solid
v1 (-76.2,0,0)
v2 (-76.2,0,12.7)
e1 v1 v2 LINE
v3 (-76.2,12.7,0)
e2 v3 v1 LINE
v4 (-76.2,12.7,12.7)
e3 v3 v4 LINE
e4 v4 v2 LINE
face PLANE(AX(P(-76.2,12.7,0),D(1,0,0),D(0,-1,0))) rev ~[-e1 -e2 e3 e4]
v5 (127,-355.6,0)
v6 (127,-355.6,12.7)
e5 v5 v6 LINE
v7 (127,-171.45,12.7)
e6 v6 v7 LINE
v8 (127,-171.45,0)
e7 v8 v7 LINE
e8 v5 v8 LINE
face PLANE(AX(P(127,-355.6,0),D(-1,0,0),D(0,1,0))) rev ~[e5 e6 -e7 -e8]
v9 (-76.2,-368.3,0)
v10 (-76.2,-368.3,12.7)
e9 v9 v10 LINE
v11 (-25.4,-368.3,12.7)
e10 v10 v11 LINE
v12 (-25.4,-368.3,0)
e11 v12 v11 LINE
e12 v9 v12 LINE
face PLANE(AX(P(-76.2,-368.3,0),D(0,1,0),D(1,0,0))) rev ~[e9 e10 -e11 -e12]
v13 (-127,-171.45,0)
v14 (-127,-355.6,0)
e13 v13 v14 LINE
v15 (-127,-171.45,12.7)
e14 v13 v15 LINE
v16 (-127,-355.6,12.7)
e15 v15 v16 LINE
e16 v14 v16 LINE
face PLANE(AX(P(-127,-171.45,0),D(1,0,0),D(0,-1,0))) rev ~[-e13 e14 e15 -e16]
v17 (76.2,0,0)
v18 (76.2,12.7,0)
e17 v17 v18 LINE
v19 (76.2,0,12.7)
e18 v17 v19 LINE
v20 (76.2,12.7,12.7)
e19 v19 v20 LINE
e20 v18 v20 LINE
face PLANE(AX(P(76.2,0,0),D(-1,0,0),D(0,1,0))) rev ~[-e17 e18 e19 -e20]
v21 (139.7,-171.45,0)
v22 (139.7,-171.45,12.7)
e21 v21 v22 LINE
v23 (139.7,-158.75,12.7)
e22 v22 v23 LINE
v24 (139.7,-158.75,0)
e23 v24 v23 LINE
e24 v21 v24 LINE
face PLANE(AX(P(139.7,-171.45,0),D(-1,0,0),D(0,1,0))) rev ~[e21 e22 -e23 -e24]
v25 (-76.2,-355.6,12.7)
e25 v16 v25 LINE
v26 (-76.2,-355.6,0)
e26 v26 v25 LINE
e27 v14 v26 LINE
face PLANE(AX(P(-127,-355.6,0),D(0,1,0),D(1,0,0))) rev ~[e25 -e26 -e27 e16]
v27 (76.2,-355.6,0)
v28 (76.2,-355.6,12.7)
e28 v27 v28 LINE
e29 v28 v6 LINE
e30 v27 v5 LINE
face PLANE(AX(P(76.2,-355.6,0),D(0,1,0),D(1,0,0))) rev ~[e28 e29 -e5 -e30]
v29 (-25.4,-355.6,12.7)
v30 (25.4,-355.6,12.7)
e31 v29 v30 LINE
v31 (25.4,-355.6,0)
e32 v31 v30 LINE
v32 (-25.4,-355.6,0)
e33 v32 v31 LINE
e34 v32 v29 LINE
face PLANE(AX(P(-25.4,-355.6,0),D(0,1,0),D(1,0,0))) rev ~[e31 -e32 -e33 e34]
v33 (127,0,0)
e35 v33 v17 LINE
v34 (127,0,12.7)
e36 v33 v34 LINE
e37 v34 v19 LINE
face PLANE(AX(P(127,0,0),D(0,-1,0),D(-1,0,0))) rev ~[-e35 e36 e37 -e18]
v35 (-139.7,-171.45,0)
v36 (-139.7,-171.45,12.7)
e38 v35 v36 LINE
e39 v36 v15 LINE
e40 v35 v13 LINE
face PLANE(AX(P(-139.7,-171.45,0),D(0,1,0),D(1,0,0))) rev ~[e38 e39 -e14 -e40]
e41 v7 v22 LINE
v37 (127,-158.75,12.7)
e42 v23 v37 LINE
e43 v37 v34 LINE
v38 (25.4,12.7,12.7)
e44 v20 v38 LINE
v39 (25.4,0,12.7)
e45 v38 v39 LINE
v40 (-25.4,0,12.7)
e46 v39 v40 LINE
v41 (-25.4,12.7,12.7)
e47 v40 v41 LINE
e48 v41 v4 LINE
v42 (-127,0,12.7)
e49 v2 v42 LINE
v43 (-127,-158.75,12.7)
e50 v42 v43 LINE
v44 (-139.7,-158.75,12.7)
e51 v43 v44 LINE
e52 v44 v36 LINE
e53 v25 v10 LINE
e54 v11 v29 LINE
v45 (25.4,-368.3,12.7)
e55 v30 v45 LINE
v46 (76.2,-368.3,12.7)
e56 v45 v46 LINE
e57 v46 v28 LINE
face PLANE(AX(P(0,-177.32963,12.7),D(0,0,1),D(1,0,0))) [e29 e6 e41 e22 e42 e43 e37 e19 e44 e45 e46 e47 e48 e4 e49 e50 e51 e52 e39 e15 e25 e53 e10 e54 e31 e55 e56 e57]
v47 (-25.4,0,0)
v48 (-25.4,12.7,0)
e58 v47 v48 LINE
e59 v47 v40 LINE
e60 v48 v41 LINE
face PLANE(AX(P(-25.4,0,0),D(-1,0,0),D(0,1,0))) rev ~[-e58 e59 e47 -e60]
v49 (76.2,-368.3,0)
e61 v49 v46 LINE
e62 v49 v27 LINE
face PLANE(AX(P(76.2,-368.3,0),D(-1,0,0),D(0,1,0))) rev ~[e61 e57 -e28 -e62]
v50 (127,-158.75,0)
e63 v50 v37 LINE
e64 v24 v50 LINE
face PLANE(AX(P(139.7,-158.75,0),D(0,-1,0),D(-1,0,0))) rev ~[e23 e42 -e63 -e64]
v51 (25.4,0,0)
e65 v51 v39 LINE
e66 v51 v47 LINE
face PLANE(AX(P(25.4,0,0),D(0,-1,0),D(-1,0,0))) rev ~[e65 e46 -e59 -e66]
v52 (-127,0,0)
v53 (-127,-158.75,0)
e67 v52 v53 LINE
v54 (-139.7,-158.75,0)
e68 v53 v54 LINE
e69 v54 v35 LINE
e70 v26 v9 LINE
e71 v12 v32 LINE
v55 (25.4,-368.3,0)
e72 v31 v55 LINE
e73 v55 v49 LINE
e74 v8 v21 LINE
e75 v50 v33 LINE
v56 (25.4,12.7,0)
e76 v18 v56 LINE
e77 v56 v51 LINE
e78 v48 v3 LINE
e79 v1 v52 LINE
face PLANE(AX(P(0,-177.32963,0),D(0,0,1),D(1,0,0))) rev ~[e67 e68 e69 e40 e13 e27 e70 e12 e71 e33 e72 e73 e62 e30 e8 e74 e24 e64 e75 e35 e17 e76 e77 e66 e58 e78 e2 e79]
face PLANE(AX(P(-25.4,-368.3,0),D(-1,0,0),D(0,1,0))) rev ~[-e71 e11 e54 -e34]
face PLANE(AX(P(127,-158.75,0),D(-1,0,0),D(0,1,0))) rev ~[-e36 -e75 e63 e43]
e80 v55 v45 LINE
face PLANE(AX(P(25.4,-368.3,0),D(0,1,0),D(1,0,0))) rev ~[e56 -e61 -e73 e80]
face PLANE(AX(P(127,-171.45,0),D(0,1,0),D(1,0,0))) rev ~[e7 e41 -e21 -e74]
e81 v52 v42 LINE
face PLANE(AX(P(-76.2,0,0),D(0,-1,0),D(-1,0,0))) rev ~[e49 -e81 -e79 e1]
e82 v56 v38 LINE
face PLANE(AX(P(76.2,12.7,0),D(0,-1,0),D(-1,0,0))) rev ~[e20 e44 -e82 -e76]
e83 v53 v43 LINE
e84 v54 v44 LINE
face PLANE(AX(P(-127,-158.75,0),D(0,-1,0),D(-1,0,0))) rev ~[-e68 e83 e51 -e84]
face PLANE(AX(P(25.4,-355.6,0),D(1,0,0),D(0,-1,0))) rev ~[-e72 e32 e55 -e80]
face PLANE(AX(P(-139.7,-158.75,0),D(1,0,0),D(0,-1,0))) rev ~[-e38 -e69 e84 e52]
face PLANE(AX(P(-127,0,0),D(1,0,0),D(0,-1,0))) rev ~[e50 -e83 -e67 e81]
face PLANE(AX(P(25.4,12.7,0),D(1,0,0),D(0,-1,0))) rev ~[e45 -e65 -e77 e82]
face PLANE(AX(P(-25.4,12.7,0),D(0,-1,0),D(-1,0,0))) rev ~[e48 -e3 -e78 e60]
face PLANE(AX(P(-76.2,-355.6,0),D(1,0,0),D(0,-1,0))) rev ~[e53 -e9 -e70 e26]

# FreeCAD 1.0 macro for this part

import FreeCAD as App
import Part
import Sketcher
Q = App.Units.Quantity

doc = App.newDocument("Part")
body = doc.addObject("PartDesign::Body", "Body")

# Sketch on XY plane
sketch1 = body.newObject("Sketcher::SketchObject", "Sketch")
sketch1.AttachmentSupport = (doc.getObject("XY_Plane"), [""])
sketch1.MapMode = "FlatFace"
sketch1.addGeometry(Part.LineSegment(App.Vector(-25, 13, 0), App.Vector(-76, 13, 0)), False)
sketch1.addGeometry(Part.LineSegment(App.Vector(-76, 13, 0), App.Vector(-76, 0, 0)), False)
sketch1.addGeometry(Part.LineSegment(App.Vector(-76, 0, 0), App.Vector(-127, 0, 0)), False)
sketch1.addGeometry(Part.LineSegment(App.Vector(-127, 0, 0), App.Vector(-127, -159, 0)), False)
sketch1.addGeometry(Part.LineSegment(App.Vector(-127, -159, 0), App.Vector(-140, -159, 0)), False)
sketch1.addGeometry(Part.LineSegment(App.Vector(-140, -159, 0), App.Vector(-140, -171, 0)), False)
sketch1.addGeometry(Part.LineSegment(App.Vector(-140, -171, 0), App.Vector(-127, -171, 0)), False)
sketch1.addGeometry(Part.LineSegment(App.Vector(-127, -171, 0), App.Vector(-127, -356, 0)), False)
sketch1.addGeometry(Part.LineSegment(App.Vector(-127, -356, 0), App.Vector(-76, -356, 0)), False)
sketch1.addGeometry(Part.LineSegment(App.Vector(-76, -356, 0), App.Vector(-76, -368, 0)), False)
sketch1.addGeometry(Part.LineSegment(App.Vector(-76, -368, 0), App.Vector(-25, -368, 0)), False)
sketch1.addGeometry(Part.LineSegment(App.Vector(-25, -368, 0), App.Vector(-25, -356, 0)), False)
sketch1.addGeometry(Part.LineSegment(App.Vector(-25, -356, 0), App.Vector(25, -356, 0)), False)
sketch1.addGeometry(Part.LineSegment(App.Vector(25, -356, 0), App.Vector(25, -368, 0)), False)
sketch1.addGeometry(Part.LineSegment(App.Vector(25, -368, 0), App.Vector(76, -368, 0)), False)
sketch1.addGeometry(Part.LineSegment(App.Vector(76, -368, 0), App.Vector(76, -356, 0)), False)
sketch1.addGeometry(Part.LineSegment(App.Vector(76, -356, 0), App.Vector(127, -356, 0)), False)
sketch1.addGeometry(Part.LineSegment(App.Vector(127, -356, 0), App.Vector(127, -171, 0)), False)
sketch1.addGeometry(Part.LineSegment(App.Vector(127, -171, 0), App.Vector(140, -171, 0)), False)
sketch1.addGeometry(Part.LineSegment(App.Vector(140, -171, 0), App.Vector(140, -159, 0)), False)
sketch1.addGeometry(Part.LineSegment(App.Vector(140, -159, 0), App.Vector(127, -159, 0)), False)
sketch1.addGeometry(Part.LineSegment(App.Vector(127, -159, 0), App.Vector(127, 0, 0)), False)
sketch1.addGeometry(Part.LineSegment(App.Vector(127, 0, 0), App.Vector(76, 0, 0)), False)
sketch1.addGeometry(Part.LineSegment(App.Vector(76, 0, 0), App.Vector(76, 13, 0)), False)
sketch1.addGeometry(Part.LineSegment(App.Vector(76, 13, 0), App.Vector(25, 13, 0)), False)
sketch1.addGeometry(Part.LineSegment(App.Vector(25, 13, 0), App.Vector(25, 0, 0)), False)
sketch1.addGeometry(Part.LineSegment(App.Vector(25, 0, 0), App.Vector(-25, 0, 0)), False)
sketch1.addGeometry(Part.LineSegment(App.Vector(-25, 0, 0), App.Vector(-25, 13, 0)), False)
sketch1.addConstraint(Sketcher.Constraint("Coincident", 0, 2, 1, 1))
sketch1.addConstraint(Sketcher.Constraint("Coincident", 1, 2, 2, 1))
sketch1.addConstraint(Sketcher.Constraint("Coincident", 2, 2, 3, 1))
sketch1.addConstraint(Sketcher.Constraint("Coincident", 3, 2, 4, 1))
sketch1.addConstraint(Sketcher.Constraint("Coincident", 4, 2, 5, 1))
sketch1.addConstraint(Sketcher.Constraint("Coincident", 5, 2, 6, 1))
sketch1.addConstraint(Sketcher.Constraint("Coincident", 6, 2, 7, 1))
sketch1.addConstraint(Sketcher.Constraint("Coincident", 7, 2, 8, 1))
sketch1.addConstraint(Sketcher.Constraint("Coincident", 8, 2, 9, 1))
sketch1.addConstraint(Sketcher.Constraint("Coincident", 9, 2, 10, 1))
sketch1.addConstraint(Sketcher.Constraint("Coincident", 10, 2, 11, 1))
sketch1.addConstraint(Sketcher.Constraint("Coincident", 11, 2, 12, 1))
sketch1.addConstraint(Sketcher.Constraint("Coincident", 12, 2, 13, 1))
sketch1.addConstraint(Sketcher.Constraint("Coincident", 13, 2, 14, 1))
sketch1.addConstraint(Sketcher.Constraint("Coincident", 14, 2, 15, 1))
sketch1.addConstraint(Sketcher.Constraint("Coincident", 15, 2, 16, 1))
sketch1.addConstraint(Sketcher.Constraint("Coincident", 16, 2, 17, 1))
sketch1.addConstraint(Sketcher.Constraint("Coincident", 17, 2, 18, 1))
sketch1.addConstraint(Sketcher.Constraint("Coincident", 18, 2, 19, 1))
sketch1.addConstraint(Sketcher.Constraint("Coincident", 19, 2, 20, 1))
sketch1.addConstraint(Sketcher.Constraint("Coincident", 20, 2, 21, 1))
sketch1.addConstraint(Sketcher.Constraint("Coincident", 21, 2, 22, 1))
sketch1.addConstraint(Sketcher.Constraint("Coincident", 22, 2, 23, 1))
sketch1.addConstraint(Sketcher.Constraint("Coincident", 23, 2, 24, 1))
sketch1.addConstraint(Sketcher.Constraint("Coincident", 24, 2, 25, 1))
sketch1.addConstraint(Sketcher.Constraint("Coincident", 25, 2, 26, 1))
sketch1.addConstraint(Sketcher.Constraint("Coincident", 26, 2, 27, 1))
sketch1.addConstraint(Sketcher.Constraint("Coincident", 27, 2, 0, 1))
sketch1.addConstraint(Sketcher.Constraint("Horizontal", 0))
sketch1.addConstraint(Sketcher.Constraint("Vertical", 1))
sketch1.addConstraint(Sketcher.Constraint("Horizontal", 2))
sketch1.addConstraint(Sketcher.Constraint("Vertical", 3))
sketch1.addConstraint(Sketcher.Constraint("Horizontal", 4))
sketch1.addConstraint(Sketcher.Constraint("Vertical", 5))
sketch1.addConstraint(Sketcher.Constraint("Horizontal", 6))
sketch1.addConstraint(Sketcher.Constraint("Vertical", 7))
sketch1.addConstraint(Sketcher.Constraint("Horizontal", 8))
sketch1.addConstraint(Sketcher.Constraint("Vertical", 9))
sketch1.addConstraint(Sketcher.Constraint("Horizontal", 10))
sketch1.addConstraint(Sketcher.Constraint("Vertical", 11))
sketch1.addConstraint(Sketcher.Constraint("Horizontal", 12))
sketch1.addConstraint(Sketcher.Constraint("Vertical", 13))
sketch1.addConstraint(Sketcher.Constraint("Horizontal", 14))
sketch1.addConstraint(Sketcher.Constraint("Vertical", 15))
sketch1.addConstraint(Sketcher.Constraint("Horizontal", 16))
sketch1.addConstraint(Sketcher.Constraint("Vertical", 17))
sketch1.addConstraint(Sketcher.Constraint("Horizontal", 18))
sketch1.addConstraint(Sketcher.Constraint("Vertical", 19))
sketch1.addConstraint(Sketcher.Constraint("Horizontal", 20))
sketch1.addConstraint(Sketcher.Constraint("Vertical", 21))
sketch1.addConstraint(Sketcher.Constraint("Horizontal", 22))
sketch1.addConstraint(Sketcher.Constraint("Vertical", 23))
sketch1.addConstraint(Sketcher.Constraint("Horizontal", 24))
sketch1.addConstraint(Sketcher.Constraint("Vertical", 25))
sketch1.addConstraint(Sketcher.Constraint("Horizontal", 26))
sketch1.addConstraint(Sketcher.Constraint("Vertical", 27))
sketch1.addConstraint(Sketcher.Constraint("Symmetric", 2, 2, 21, 2, -1, 1))
sketch1.addConstraint(Sketcher.Constraint("Symmetric", 25, 2, 26, 2, -1, 1))
sketch1.addConstraint(Sketcher.Constraint("Symmetric", 10, 2, 13, 2, -2))
sketch1.addConstraint(Sketcher.Constraint("Symmetric", 8, 2, 15, 2, -2))
sketch1.addConstraint(Sketcher.Constraint("Symmetric", 6, 2, 17, 2, -2))
sketch1.addConstraint(Sketcher.Constraint("Symmetric", 4, 2, 19, 2, -2))
sketch1.addConstraint(Sketcher.Constraint("Symmetric", 1, 2, 22, 2, -2))
sketch1.addConstraint(Sketcher.Constraint("Horizontal", 8, 2, 11, 2))
sketch1.addConstraint(Sketcher.Constraint("Horizontal", 0, 2, 23, 2))
sketch1.addConstraint(Sketcher.Constraint("Vertical", 3, 2, 6, 2))
sketch1.addConstraint(Sketcher.Constraint("Vertical", 1, 2, 8, 2))
sketch1.addConstraint(Sketcher.Constraint("Vertical", 13, 2, 24, 2))
sketch1.addConstraint(Sketcher.Constraint("Equal", 0, 2))
sketch1.addConstraint(Sketcher.Constraint("Equal", 10, 12))
sketch1.addConstraint(Sketcher.Constraint("Equal", 20, 1))
sketch1.addConstraint(Sketcher.Constraint("Equal", 1, 5))
sketch1.addConstraint(Sketcher.Constraint("Equal", 5, 9))
sketch1.addConstraint(Sketcher.Constraint("DistanceX", 0, 2, 0, 1, Q("2 in")))
sketch1.addConstraint(Sketcher.Constraint("DistanceX", 4, 2, 4, 1, Q("0.5 in")))
sketch1.addConstraint(Sketcher.Constraint("DistanceY", 7, 2, -1, 1, Q("14 in")))
sketch1.addConstraint(Sketcher.Constraint("DistanceY", 3, 2, 3, 1, Q("6.25 in")))
pad1 = body.newObject("PartDesign::Pad", "Pad")
pad1.Profile = sketch1
pad1.Length = Q("0.5 in")

doc.recompute()
